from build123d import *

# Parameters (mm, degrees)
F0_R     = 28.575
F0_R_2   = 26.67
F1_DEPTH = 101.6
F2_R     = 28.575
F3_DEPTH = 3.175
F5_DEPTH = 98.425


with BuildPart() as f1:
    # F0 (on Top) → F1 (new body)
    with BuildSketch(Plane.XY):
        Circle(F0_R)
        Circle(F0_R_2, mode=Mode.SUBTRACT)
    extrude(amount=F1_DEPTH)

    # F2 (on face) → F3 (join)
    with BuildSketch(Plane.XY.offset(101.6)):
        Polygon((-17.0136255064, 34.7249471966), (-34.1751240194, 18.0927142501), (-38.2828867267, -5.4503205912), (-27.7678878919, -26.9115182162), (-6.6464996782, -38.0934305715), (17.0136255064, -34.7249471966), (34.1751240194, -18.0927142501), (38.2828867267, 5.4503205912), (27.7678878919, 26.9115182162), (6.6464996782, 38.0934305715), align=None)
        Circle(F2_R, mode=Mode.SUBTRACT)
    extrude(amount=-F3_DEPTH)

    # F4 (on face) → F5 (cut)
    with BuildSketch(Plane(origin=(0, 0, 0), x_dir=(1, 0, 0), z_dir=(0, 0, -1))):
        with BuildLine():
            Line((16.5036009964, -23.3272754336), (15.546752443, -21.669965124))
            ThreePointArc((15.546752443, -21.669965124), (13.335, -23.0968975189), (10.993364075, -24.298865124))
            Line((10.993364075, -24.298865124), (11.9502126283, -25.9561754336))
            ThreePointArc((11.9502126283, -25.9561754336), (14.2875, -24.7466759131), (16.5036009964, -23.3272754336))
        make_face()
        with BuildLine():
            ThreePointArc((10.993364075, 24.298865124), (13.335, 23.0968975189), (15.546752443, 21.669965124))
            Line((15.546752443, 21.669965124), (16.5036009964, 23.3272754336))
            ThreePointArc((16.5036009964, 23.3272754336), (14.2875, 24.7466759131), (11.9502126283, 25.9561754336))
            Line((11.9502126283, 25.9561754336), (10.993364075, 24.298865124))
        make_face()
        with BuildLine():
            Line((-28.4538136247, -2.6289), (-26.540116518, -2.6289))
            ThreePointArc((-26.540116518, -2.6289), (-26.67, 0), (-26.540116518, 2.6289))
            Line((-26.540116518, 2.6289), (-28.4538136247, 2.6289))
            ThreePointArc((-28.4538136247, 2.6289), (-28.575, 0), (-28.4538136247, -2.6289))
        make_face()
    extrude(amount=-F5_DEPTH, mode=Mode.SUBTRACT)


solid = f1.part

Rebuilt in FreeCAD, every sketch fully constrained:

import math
import FreeCAD as App
import Part
import Sketcher

V = App.Vector
Q = App.Units.Quantity


def add_polygon(sketch, points):
    """Adds a closed chain of lines whose ends are joined by coincident constraints."""
    first, n = sketch.GeometryCount, len(points)
    for a, b in zip(points, points[1:] + points[:1]):
        sketch.addGeometry(Part.LineSegment(App.Vector(*a, 0), App.Vector(*b, 0)), False)
    for i in range(n):
        sketch.addConstraint(Sketcher.Constraint("Coincident", first + i, 2, first + (i + 1) % n, 1))

doc = App.newDocument("Part")
params = doc.addObject("Spreadsheet::Sheet", "Params")
for row, (alias, value) in enumerate([
    ("sketch1_diameter", "2.1 in"),
    ("sketch1_diameter2", "2.25 in"),
    ("pad1_length", "4 in"),
    ("sketch2_diameter", "2.25 in"),
    ("pad2_length", "0.125 in"),
    ("sketch3_radius", "1.05 in"),
    ("sketch3_radius2", "1.125 in"),
    ("pocket1_length", "3.875 in"),
], start=1):
    params.set(f"A{row}", alias)
    params.set(f"B{row}", "=" + value)
    params.setAlias(f"B{row}", alias)

body = doc.addObject("PartDesign::Body", "Body")

# Sketch on XY plane
sketch1 = body.newObject("Sketcher::SketchObject", "Sketch")
sketch1.AttachmentSupport = (doc.getObject("XY_Plane"), [""])
sketch1.MapMode = "FlatFace"
sketch1.addGeometry(Part.Circle(V(0, 0, 0), V(0, 0, 1), 29), False)
sketch1.addGeometry(Part.Circle(V(0, 0, 0), V(0, 0, 1), 27), False)
sketch1.addConstraint(Sketcher.Constraint("Coincident", 0, 3, -1, 1))
sketch1.addConstraint(Sketcher.Constraint("Coincident", 1, 3, -1, 1))
sketch1.addConstraint(Sketcher.Constraint("Diameter", 1, Q("2.1 in")))
sketch1.addConstraint(Sketcher.Constraint("Diameter", 0, Q("2.25 in")))
sketch1.setExpression("Constraints[2]", "Params.sketch1_diameter")
sketch1.setExpression("Constraints[3]", "Params.sketch1_diameter2")
pad1 = body.newObject("PartDesign::Pad", "Pad")
pad1.Profile = sketch1
pad1.setExpression("Length", "Params.pad1_length")

# Sketch on XY plane
sketch2 = body.newObject("Sketcher::SketchObject", "Sketch001")
sketch2.AttachmentSupport = (doc.getObject("XY_Plane"), [""])
sketch2.MapMode = "FlatFace"
sketch2.AttachmentOffset = App.Placement(V(0, 0, 4 * 25.4), App.Rotation())
add_polygon(sketch2, [(-17, 35), (-34, 18), (-38, -5), (-28, -27), (-7, -38), (17, -35), (34, -18), (38, 5), (28, 27), (7, 38)])  # lines 0-9
sketch2.addGeometry(Part.Circle(V(0, 0, 0), V(0, 0, 1), 29), False)  # 10
sketch2.addConstraint(Sketcher.Constraint("Coincident", 10, 3, -1, 1))
sketch2.addConstraint(Sketcher.Constraint("Symmetric", 0, 2, 5, 2, -1, 1))
sketch2.addConstraint(Sketcher.Constraint("Symmetric", 1, 2, 6, 2, -1, 1))
sketch2.addConstraint(Sketcher.Constraint("Symmetric", 2, 2, 7, 2, -1, 1))
sketch2.addConstraint(Sketcher.Constraint("Symmetric", 3, 2, 8, 2, -1, 1))
sketch2.addConstraint(Sketcher.Constraint("Symmetric", 4, 2, 9, 2, -1, 1))
sketch2.addConstraint(Sketcher.Constraint("Equal", 0, 1))
sketch2.addConstraint(Sketcher.Constraint("Equal", 1, 2))
sketch2.addConstraint(Sketcher.Constraint("Equal", 2, 3))
sketch2.addConstraint(Sketcher.Constraint("Equal", 3, 4))
sketch2.addConstraint(Sketcher.Constraint("Diameter", 10, Q("2.25 in")))
sketch2.addConstraint(Sketcher.Constraint("DistanceX", 3, 2, -1, 1, 6.6465))
sketch2.addConstraint(Sketcher.Constraint("DistanceX", 1, 2, 2, 2, 10.514999))
sketch2.addConstraint(Sketcher.Constraint("DistanceX", 4, 2, 5, 2, 17.161499))
sketch2.addConstraint(Sketcher.Constraint("DistanceY", 1, 2, -1, 1, 5.450321))
sketch2.addConstraint(Sketcher.Constraint("DistanceY", 2, 2, -1, 1, 26.911518))
sketch2.addConstraint(Sketcher.Constraint("DistanceY", 3, 2, -1, 1, 38.093431))
sketch2.setExpression("Constraints[20]", "Params.sketch2_diameter")
pad2 = body.newObject("PartDesign::Pad", "Pad001")
pad2.Profile = sketch2
pad2.setExpression("Length", "Params.pad2_length")
pad2.Reversed = True

# Sketch on XY plane
sketch3 = body.newObject("Sketcher::SketchObject", "Sketch002")
sketch3.AttachmentSupport = (doc.getObject("XY_Plane"), [""])
sketch3.MapMode = "FlatFace"
sketch3.addGeometry(Part.LineSegment(V(16.5, 23.3, 0), V(15.5, 21.7, 0)), False)
sketch3.addGeometry(Part.ArcOfCircle(Part.Circle(V(0, 0, 0), V(0, 0, 1), 26.7), math.radians(54.34), math.radians(65.66)), False)
sketch3.addGeometry(Part.LineSegment(V(11, 24.3, 0), V(12, 26, 0)), False)
sketch3.addGeometry(Part.ArcOfCircle(Part.Circle(V(0, 0, 0), V(0, 0, 1), 28.6), math.radians(54.72), math.radians(65.28)), False)
sketch3.addGeometry(Part.ArcOfCircle(Part.Circle(V(0, 0, 0), V(0, 0, 1), 26.7), math.radians(-65.66), math.radians(-54.34)), False)
sketch3.addGeometry(Part.LineSegment(V(15.5, -21.7, 0), V(16.5, -23.3, 0)), False)
sketch3.addGeometry(Part.ArcOfCircle(Part.Circle(V(0, 0, 0), V(0, 0, 1), 28.6), math.radians(-65.28), math.radians(-54.72)), False)
sketch3.addGeometry(Part.LineSegment(V(12, -26, 0), V(11, -24.3, 0)), False)
sketch3.addGeometry(Part.LineSegment(V(-28.5, 2.6, 0), V(-26.5, 2.6, 0)), False)
sketch3.addGeometry(Part.ArcOfCircle(Part.Circle(V(0, 0, 0), V(0, 0, 1), 26.7), math.radians(174.34), math.radians(185.66)), False)
sketch3.addGeometry(Part.LineSegment(V(-26.5, -2.6, 0), V(-28.5, -2.6, 0)), False)
sketch3.addGeometry(Part.ArcOfCircle(Part.Circle(V(0, 0, 0), V(0, 0, 1), 28.6), math.radians(174.72), math.radians(185.28)), False)
sketch3.addConstraint(Sketcher.Constraint("Coincident", 0, 2, 1, 1))
sketch3.addConstraint(Sketcher.Constraint("Coincident", 1, 2, 2, 1))
sketch3.addConstraint(Sketcher.Constraint("Coincident", 2, 2, 3, 2))
sketch3.addConstraint(Sketcher.Constraint("Coincident", 3, 1, 0, 1))
sketch3.addConstraint(Sketcher.Constraint("Coincident", 4, 2, 5, 1))
sketch3.addConstraint(Sketcher.Constraint("Coincident", 5, 2, 6, 2))
sketch3.addConstraint(Sketcher.Constraint("Coincident", 6, 1, 7, 1))
sketch3.addConstraint(Sketcher.Constraint("Coincident", 7, 2, 4, 1))
sketch3.addConstraint(Sketcher.Constraint("Coincident", 8, 2, 9, 1))
sketch3.addConstraint(Sketcher.Constraint("Coincident", 9, 2, 10, 1))
sketch3.addConstraint(Sketcher.Constraint("Coincident", 10, 2, 11, 2))
sketch3.addConstraint(Sketcher.Constraint("Coincident", 11, 1, 8, 1))
sketch3.addConstraint(Sketcher.Constraint("Horizontal", 8))
sketch3.addConstraint(Sketcher.Constraint("Horizontal", 10))
sketch3.addConstraint(Sketcher.Constraint("Coincident", 1, 3, -1, 1))
sketch3.addConstraint(Sketcher.Constraint("Coincident", 3, 3, -1, 1))
sketch3.addConstraint(Sketcher.Constraint("Coincident", 4, 3, -1, 1))
sketch3.addConstraint(Sketcher.Constraint("Coincident", 6, 3, -1, 1))
sketch3.addConstraint(Sketcher.Constraint("Coincident", 9, 3, -1, 1))
sketch3.addConstraint(Sketcher.Constraint("Coincident", 11, 3, -1, 1))
sketch3.addConstraint(Sketcher.Constraint("Equal", 1, 4))
sketch3.addConstraint(Sketcher.Constraint("Equal", 3, 6))
sketch3.addConstraint(Sketcher.Constraint("Equal", 4, 9))
sketch3.addConstraint(Sketcher.Constraint("Equal", 6, 11))
sketch3.addConstraint(Sketcher.Constraint("Parallel", 0, 2))
sketch3.addConstraint(Sketcher.Constraint("Parallel", 5, 7))
sketch3.addConstraint(Sketcher.Constraint("Vertical", 0, 2, 4, 2))
sketch3.addConstraint(Sketcher.Constraint("Vertical", 3, 1, 5, 2))
sketch3.addConstraint(Sketcher.Constraint("Vertical", 2, 2, 6, 1))
sketch3.addConstraint(Sketcher.Constraint("Vertical", 8, 2, 9, 2))
sketch3.addConstraint(Sketcher.Constraint("Equal", 0, 2))
sketch3.addConstraint(Sketcher.Constraint("Radius", 1, Q("1.05 in")))
sketch3.addConstraint(Sketcher.Constraint("Angle", 0, Q("-120 deg")))
sketch3.addConstraint(Sketcher.Constraint("Radius", 3, Q("1.125 in")))
sketch3.addConstraint(Sketcher.Constraint("DistanceY", 9, 2, 8, 2, Q("0.207 in")))
sketch3.addConstraint(Sketcher.Constraint("DistanceY", 0, 2, 1, 2, Q("0.1035 in")))
sketch3.setExpression("Constraints[31]", "Params.sketch3_radius")
sketch3.setExpression("Constraints[33]", "Params.sketch3_radius2")
pocket1 = body.newObject("PartDesign::Pocket", "Pocket")
pocket1.Profile = sketch3
pocket1.setExpression("Length", "Params.pocket1_length")
pocket1.Reversed = True

doc.recompute()
